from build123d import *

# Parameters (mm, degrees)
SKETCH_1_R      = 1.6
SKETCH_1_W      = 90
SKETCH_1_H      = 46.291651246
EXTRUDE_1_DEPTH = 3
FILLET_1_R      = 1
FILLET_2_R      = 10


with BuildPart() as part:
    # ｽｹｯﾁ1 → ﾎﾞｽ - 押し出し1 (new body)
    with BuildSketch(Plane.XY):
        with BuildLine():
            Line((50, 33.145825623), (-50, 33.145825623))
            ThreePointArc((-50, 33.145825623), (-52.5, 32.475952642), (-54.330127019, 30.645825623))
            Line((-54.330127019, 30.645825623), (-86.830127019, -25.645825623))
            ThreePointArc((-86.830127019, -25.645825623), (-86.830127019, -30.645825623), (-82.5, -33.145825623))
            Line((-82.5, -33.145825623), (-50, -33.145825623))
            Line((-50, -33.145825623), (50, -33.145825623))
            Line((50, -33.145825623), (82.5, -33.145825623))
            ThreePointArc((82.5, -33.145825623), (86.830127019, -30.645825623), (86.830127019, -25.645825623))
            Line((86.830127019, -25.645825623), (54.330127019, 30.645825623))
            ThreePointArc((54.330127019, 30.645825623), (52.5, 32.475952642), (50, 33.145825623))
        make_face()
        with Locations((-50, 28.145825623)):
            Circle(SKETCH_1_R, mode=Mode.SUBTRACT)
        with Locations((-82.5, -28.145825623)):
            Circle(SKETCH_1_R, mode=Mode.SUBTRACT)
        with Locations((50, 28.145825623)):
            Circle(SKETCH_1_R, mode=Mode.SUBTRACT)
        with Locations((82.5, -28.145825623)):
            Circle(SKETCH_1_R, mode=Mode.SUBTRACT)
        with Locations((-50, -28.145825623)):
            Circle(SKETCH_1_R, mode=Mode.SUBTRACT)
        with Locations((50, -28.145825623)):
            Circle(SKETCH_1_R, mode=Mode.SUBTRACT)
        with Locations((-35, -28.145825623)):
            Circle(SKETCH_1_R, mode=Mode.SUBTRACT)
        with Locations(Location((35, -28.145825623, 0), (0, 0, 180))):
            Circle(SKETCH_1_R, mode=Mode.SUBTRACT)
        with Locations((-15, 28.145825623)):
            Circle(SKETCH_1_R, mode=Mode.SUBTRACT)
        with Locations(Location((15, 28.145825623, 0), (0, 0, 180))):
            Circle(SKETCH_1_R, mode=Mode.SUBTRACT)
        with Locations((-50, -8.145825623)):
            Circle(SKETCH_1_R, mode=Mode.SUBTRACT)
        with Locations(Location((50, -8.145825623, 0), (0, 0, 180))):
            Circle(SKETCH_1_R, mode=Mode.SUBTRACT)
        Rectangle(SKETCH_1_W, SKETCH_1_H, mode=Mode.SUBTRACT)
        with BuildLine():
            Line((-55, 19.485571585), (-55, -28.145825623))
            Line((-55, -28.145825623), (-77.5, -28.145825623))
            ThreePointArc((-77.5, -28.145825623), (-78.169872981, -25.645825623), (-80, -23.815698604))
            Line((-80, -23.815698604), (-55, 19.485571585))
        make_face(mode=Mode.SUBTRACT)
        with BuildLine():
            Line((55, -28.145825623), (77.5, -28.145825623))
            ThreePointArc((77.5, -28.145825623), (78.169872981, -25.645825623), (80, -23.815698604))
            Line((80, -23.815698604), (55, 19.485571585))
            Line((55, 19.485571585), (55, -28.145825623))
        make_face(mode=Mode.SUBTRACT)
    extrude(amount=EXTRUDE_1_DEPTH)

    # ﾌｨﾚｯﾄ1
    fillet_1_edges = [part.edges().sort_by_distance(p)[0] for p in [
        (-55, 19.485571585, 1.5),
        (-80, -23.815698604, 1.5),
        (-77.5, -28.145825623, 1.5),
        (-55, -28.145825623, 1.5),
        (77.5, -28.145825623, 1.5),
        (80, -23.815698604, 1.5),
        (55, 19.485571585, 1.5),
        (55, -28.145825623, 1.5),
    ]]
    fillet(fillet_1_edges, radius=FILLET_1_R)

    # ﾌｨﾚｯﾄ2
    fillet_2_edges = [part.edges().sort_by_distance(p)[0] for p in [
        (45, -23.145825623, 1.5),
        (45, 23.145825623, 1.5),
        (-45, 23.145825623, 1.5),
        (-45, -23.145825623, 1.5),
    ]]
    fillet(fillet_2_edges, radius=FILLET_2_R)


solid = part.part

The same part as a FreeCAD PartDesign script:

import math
import FreeCAD as App
import Part
import Sketcher

V = App.Vector
Q = App.Units.Quantity


def edges_at(feature, points):
    """Names of the edges that pass closest to the given points."""
    edges = feature.Shape.Edges
    near = lambda p: min(range(len(edges)), key=lambda i: edges[i].distToShape(Part.Vertex(*p))[0])
    return sorted({f"Edge{near(p) + 1}" for p in points})

doc = App.newDocument("Part")
body = doc.addObject("PartDesign::Body", "Body")

# Sketch on XY plane
sketch1 = doc.addObject("Sketcher::SketchObject", "Sketch")
body.addObject(sketch1)
sketch1.AttachmentSupport = (doc.XY_Plane, [""])
sketch1.MapMode = "FlatFace"
sketch1.addGeometry([
    Part.LineSegment(V(50, 33.1, 0), V(-50, 33.1, 0)),  # 0
    Part.ArcOfCircle(Part.Circle(V(-50, 28.1, 0), V(0, 0, 1), 5), math.radians(90), math.radians(150)),  # 1
    Part.LineSegment(V(-54.3, 30.6, 0), V(-86.8, -25.6, 0)),  # 2
    Part.ArcOfCircle(Part.Circle(V(-82.5, -28.1, 0), V(0, 0, 1), 5), math.radians(150), math.radians(270)),  # 3
    Part.LineSegment(V(-82.5, -33.1, 0), V(82.5, -33.1, 0)),  # 4
    Part.ArcOfCircle(Part.Circle(V(82.5, -28.1, 0), V(0, 0, 1), 5), math.radians(-90), math.radians(30)),  # 5
    Part.LineSegment(V(86.8, -25.6, 0), V(54.3, 30.6, 0)),  # 6
    Part.ArcOfCircle(Part.Circle(V(50, 28.1, 0), V(0, 0, 1), 5), math.radians(30), math.radians(90)),  # 7
    Part.Circle(V(-82.5, -28.1, 0), V(0, 0, 1), 1.6),  # 8
    Part.Circle(V(-50, -28.1, 0), V(0, 0, 1), 1.6),  # 9
    Part.Circle(V(-35, -28.1, 0), V(0, 0, 1), 1.6),  # 10
    Part.Circle(V(-50, -8.1, 0), V(0, 0, 1), 1.6),  # 11
    Part.LineSegment(V(-80, -23.8, 0), V(-55, 19.5, 0)),  # 12
    Part.LineSegment(V(-55, 19.5, 0), V(-55, -28.1, 0)),  # 13
    Part.LineSegment(V(-55, -28.1, 0), V(-77.5, -28.1, 0)),  # 14
    Part.ArcOfCircle(Part.Circle(V(-82.5, -28.1, 0), V(0, 0, 1), 5), math.radians(0), math.radians(60)),  # 15
    Part.Circle(V(35, -28.1, 0), V(0, 0, 1), 1.6),  # 16
    Part.Circle(V(50, -28.1, 0), V(0, 0, 1), 1.6),  # 17
    Part.Circle(V(82.5, -28.1, 0), V(0, 0, 1), 1.6),  # 18
    Part.Circle(V(50, -8.1, 0), V(0, 0, 1), 1.6),  # 19
    Part.LineSegment(V(77.5, -28.1, 0), V(55, -28.1, 0)),  # 20
    Part.LineSegment(V(55, -28.1, 0), V(55, 19.5, 0)),  # 21
    Part.LineSegment(V(55, 19.5, 0), V(80, -23.8, 0)),  # 22
    Part.ArcOfCircle(Part.Circle(V(82.5, -28.1, 0), V(0, 0, 1), 5), math.radians(120), math.radians(180)),  # 23
    Part.Circle(V(-50, 28.1, 0), V(0, 0, 1), 1.6),  # 24
    Part.Circle(V(-15, 28.1, 0), V(0, 0, 1), 1.6),  # 25
    Part.LineSegment(V(45, -23.1, 0), V(-45, -23.1, 0)),  # 26
    Part.LineSegment(V(-45, -23.1, 0), V(-45, 23.1, 0)),  # 27
    Part.LineSegment(V(-45, 23.1, 0), V(45, 23.1, 0)),  # 28
    Part.LineSegment(V(45, 23.1, 0), V(45, -23.1, 0)),  # 29
    Part.Circle(V(15, 28.1, 0), V(0, 0, 1), 1.6),  # 30
    Part.Circle(V(50, 28.1, 0), V(0, 0, 1), 1.6),  # 31
], False)
sketch1.addConstraint([
    Sketcher.Constraint("Tangent", 0, 2, 1, 1),
    Sketcher.Constraint("Tangent", 1, 2, 2, 1),
    Sketcher.Constraint("Tangent", 2, 2, 3, 1),
    Sketcher.Constraint("Tangent", 3, 2, 4, 1),
    Sketcher.Constraint("Tangent", 4, 2, 5, 1),
    Sketcher.Constraint("Tangent", 5, 2, 6, 1),
    Sketcher.Constraint("Tangent", 6, 2, 7, 1),
    Sketcher.Constraint("Tangent", 7, 2, 0, 1),
    Sketcher.Constraint("Coincident", 12, 2, 13, 1),
    Sketcher.Constraint("Coincident", 13, 2, 14, 1),
    Sketcher.Constraint("Coincident", 14, 2, 15, 1),
    Sketcher.Constraint("Coincident", 15, 2, 12, 1),
    Sketcher.Constraint("Coincident", 20, 2, 21, 1),
    Sketcher.Constraint("Coincident", 21, 2, 22, 1),
    Sketcher.Constraint("Coincident", 22, 2, 23, 1),
    Sketcher.Constraint("Coincident", 23, 2, 20, 1),
    Sketcher.Constraint("Coincident", 26, 2, 27, 1),
    Sketcher.Constraint("Coincident", 27, 2, 28, 1),
    Sketcher.Constraint("Coincident", 28, 2, 29, 1),
    Sketcher.Constraint("Coincident", 29, 2, 26, 1),
    Sketcher.Constraint("Horizontal", 0),
    Sketcher.Constraint("Horizontal", 4),
    Sketcher.Constraint("Vertical", 13),
    Sketcher.Constraint("Horizontal", 14),
    Sketcher.Constraint("Horizontal", 20),
    Sketcher.Constraint("Vertical", 21),
    Sketcher.Constraint("Horizontal", 26),
    Sketcher.Constraint("Vertical", 27),
    Sketcher.Constraint("Horizontal", 28),
    Sketcher.Constraint("Vertical", 29),
    Sketcher.Constraint("Coincident", 8, 3, 3, 3),
    Sketcher.Constraint("Coincident", 15, 3, 3, 3),
    Sketcher.Constraint("Coincident", 18, 3, 5, 3),
    Sketcher.Constraint("Coincident", 23, 3, 5, 3),
    Sketcher.Constraint("Coincident", 24, 3, 1, 3),
    Sketcher.Constraint("Coincident", 31, 3, 7, 3),
    Sketcher.Constraint("Equal", 1, 3),
    Sketcher.Constraint("Equal", 3, 5),
    Sketcher.Constraint("Equal", 5, 7),
    Sketcher.Constraint("Equal", 8, 9),
    Sketcher.Constraint("Equal", 9, 10),
    Sketcher.Constraint("Equal", 10, 11),
    Sketcher.Constraint("Equal", 7, 15),
    Sketcher.Constraint("Equal", 11, 16),
    Sketcher.Constraint("Equal", 16, 17),
    Sketcher.Constraint("Equal", 17, 18),
    Sketcher.Constraint("Equal", 18, 19),
    Sketcher.Constraint("Equal", 15, 23),
    Sketcher.Constraint("Equal", 19, 24),
    Sketcher.Constraint("Equal", 24, 25),
    Sketcher.Constraint("Equal", 25, 30),
    Sketcher.Constraint("Equal", 30, 31),
    Sketcher.Constraint("Symmetric", 7, 3, 9, 3, -1, 1),
    Sketcher.Constraint("Symmetric", 1, 3, 17, 3, -1, 1),
    Sketcher.Constraint("Symmetric", 26, 2, 28, 2, -1, 1),
    Sketcher.Constraint("Symmetric", 10, 3, 16, 3, -2),
    Sketcher.Constraint("Symmetric", 11, 3, 19, 3, -2),
    Sketcher.Constraint("Symmetric", 25, 3, 30, 3, -2),
    Sketcher.Constraint("Symmetric", 2, 2, 5, 2, -2),
    Sketcher.Constraint("Symmetric", 13, 2, 20, 2, -2),
    Sketcher.Constraint("Parallel", 2, 12),
    Sketcher.Constraint("Parallel", 6, 22),
    Sketcher.Constraint("Horizontal", 8, 3, 9, 3),
    Sketcher.Constraint("Horizontal", 9, 3, 10, 3),
    Sketcher.Constraint("Horizontal", 24, 3, 25, 3),
    Sketcher.Constraint("Horizontal", 23, 3, 13, 2),
    Sketcher.Constraint("Horizontal", 12, 2, 21, 2),
    Sketcher.Constraint("Vertical", 9, 3, 11, 3),
    Sketcher.Constraint("Radius", 1, 5.0),
    Sketcher.Constraint("Diameter", 8, 3.2),
    Sketcher.Constraint("DistanceX", 0, 2, 0, 1, 100.0),
    Sketcher.Constraint("DistanceX", 4, 1, 4, 2, 165.0),
    Sketcher.Constraint("DistanceX", 26, 2, 26, 1, 90.0),
    Sketcher.Constraint("Angle", 2, Q("-120 deg")),
    Sketcher.Constraint("Distance", 12, 50.0),
    Sketcher.Constraint("DistanceX", 14, 2, 14, 1, 22.5),
    Sketcher.Constraint("DistanceX", 10, 3, -1, 1, 35.0),
    Sketcher.Constraint("DistanceX", 25, 3, -1, 1, 15.0),
    Sketcher.Constraint("DistanceY", 9, 3, 11, 3, 20.0),
    Sketcher.Constraint("DistanceY", 9, 3, 26, 2, 5.0),
])
pad1 = doc.addObject("PartDesign::Pad", "Pad")
body.addObject(pad1)
pad1.Profile = sketch1
pad1.Length = 3
doc.recompute()

fillet = doc.addObject("PartDesign::Fillet", "Fillet")
body.addObject(fillet)
fillet.Base = (pad1, edges_at(pad1, [
    (-55, 19.486, 1.5),
    (-80, -23.816, 1.5),
    (-77.5, -28.146, 1.5),
    (-55, -28.146, 1.5),
    (77.5, -28.146, 1.5),
    (80, -23.816, 1.5),
    (55, 19.486, 1.5),
    (55, -28.146, 1.5),
]))
fillet.Radius = 1
doc.recompute()

fillet2 = doc.addObject("PartDesign::Fillet", "Fillet001")
body.addObject(fillet2)
fillet2.Base = (fillet, edges_at(fillet, [
    (45, -23.146, 1.5),
    (45, 23.146, 1.5),
    (-45, 23.146, 1.5),
    (-45, -23.146, 1.5),
]))
fillet2.Radius = 10

doc.recompute()
